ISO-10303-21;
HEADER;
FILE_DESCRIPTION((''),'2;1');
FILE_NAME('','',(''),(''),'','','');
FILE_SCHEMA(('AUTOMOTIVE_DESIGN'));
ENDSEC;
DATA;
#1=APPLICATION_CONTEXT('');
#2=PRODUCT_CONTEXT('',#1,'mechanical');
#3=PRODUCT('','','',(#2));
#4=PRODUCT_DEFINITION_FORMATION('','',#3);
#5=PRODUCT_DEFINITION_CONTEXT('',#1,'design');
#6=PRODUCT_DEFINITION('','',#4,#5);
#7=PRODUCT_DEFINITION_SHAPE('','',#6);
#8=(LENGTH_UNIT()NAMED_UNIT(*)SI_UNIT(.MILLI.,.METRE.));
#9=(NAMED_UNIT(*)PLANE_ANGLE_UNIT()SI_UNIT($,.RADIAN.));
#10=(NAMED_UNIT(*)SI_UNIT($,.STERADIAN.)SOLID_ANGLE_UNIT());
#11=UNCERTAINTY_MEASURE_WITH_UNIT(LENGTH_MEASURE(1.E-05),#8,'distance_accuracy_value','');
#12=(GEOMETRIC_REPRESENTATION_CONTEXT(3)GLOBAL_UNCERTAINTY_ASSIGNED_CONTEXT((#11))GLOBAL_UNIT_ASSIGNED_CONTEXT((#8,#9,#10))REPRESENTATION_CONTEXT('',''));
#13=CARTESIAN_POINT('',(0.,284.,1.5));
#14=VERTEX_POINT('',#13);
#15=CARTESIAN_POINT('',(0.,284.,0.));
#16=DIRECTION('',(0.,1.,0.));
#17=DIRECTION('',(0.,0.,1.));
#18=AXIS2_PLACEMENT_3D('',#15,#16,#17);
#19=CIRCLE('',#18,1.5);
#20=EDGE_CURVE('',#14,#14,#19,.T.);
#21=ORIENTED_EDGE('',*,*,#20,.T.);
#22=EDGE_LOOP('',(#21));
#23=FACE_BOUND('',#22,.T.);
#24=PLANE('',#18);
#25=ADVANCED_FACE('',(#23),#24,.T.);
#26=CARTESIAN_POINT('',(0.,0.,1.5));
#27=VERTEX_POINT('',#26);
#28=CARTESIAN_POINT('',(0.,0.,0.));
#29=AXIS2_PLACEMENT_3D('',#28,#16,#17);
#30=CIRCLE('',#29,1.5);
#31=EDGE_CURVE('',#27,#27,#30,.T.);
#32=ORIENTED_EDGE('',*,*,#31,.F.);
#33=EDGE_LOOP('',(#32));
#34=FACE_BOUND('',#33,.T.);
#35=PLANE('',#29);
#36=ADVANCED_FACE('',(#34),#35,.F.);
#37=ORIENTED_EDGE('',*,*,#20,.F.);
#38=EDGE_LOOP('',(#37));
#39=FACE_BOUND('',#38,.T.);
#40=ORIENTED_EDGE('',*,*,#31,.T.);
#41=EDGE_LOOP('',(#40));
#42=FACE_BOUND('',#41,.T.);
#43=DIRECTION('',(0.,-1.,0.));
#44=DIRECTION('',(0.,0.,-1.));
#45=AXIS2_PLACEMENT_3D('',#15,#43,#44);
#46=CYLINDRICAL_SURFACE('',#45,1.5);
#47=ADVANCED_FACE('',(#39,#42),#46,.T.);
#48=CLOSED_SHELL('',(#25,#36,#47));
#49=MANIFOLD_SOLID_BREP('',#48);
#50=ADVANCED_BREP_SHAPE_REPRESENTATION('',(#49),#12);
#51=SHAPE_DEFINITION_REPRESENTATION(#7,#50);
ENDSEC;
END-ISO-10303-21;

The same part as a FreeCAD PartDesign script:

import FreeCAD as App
import Part
import Sketcher

V = App.Vector
Q = App.Units.Quantity

doc = App.newDocument("Part")
body = doc.addObject("PartDesign::Body", "Body")

# Sketch on XZ plane
sketch1 = body.newObject("Sketcher::SketchObject", "Sketch")
sketch1.AttachmentSupport = (doc.getObject("XZ_Plane"), [""])
sketch1.MapMode = "FlatFace"
sketch1.addGeometry(Part.Circle(V(0, 0, 0), V(0, 0, 1), 1.5), False)
sketch1.addConstraint(Sketcher.Constraint("Coincident", 0, 3, -1, 1))
sketch1.addConstraint(Sketcher.Constraint("Diameter", 0, Q("3 mm")))
pad1 = body.newObject("PartDesign::Pad", "Pad")
pad1.Profile = sketch1
pad1.Length = 284
pad1.Reversed = True

doc.recompute()
